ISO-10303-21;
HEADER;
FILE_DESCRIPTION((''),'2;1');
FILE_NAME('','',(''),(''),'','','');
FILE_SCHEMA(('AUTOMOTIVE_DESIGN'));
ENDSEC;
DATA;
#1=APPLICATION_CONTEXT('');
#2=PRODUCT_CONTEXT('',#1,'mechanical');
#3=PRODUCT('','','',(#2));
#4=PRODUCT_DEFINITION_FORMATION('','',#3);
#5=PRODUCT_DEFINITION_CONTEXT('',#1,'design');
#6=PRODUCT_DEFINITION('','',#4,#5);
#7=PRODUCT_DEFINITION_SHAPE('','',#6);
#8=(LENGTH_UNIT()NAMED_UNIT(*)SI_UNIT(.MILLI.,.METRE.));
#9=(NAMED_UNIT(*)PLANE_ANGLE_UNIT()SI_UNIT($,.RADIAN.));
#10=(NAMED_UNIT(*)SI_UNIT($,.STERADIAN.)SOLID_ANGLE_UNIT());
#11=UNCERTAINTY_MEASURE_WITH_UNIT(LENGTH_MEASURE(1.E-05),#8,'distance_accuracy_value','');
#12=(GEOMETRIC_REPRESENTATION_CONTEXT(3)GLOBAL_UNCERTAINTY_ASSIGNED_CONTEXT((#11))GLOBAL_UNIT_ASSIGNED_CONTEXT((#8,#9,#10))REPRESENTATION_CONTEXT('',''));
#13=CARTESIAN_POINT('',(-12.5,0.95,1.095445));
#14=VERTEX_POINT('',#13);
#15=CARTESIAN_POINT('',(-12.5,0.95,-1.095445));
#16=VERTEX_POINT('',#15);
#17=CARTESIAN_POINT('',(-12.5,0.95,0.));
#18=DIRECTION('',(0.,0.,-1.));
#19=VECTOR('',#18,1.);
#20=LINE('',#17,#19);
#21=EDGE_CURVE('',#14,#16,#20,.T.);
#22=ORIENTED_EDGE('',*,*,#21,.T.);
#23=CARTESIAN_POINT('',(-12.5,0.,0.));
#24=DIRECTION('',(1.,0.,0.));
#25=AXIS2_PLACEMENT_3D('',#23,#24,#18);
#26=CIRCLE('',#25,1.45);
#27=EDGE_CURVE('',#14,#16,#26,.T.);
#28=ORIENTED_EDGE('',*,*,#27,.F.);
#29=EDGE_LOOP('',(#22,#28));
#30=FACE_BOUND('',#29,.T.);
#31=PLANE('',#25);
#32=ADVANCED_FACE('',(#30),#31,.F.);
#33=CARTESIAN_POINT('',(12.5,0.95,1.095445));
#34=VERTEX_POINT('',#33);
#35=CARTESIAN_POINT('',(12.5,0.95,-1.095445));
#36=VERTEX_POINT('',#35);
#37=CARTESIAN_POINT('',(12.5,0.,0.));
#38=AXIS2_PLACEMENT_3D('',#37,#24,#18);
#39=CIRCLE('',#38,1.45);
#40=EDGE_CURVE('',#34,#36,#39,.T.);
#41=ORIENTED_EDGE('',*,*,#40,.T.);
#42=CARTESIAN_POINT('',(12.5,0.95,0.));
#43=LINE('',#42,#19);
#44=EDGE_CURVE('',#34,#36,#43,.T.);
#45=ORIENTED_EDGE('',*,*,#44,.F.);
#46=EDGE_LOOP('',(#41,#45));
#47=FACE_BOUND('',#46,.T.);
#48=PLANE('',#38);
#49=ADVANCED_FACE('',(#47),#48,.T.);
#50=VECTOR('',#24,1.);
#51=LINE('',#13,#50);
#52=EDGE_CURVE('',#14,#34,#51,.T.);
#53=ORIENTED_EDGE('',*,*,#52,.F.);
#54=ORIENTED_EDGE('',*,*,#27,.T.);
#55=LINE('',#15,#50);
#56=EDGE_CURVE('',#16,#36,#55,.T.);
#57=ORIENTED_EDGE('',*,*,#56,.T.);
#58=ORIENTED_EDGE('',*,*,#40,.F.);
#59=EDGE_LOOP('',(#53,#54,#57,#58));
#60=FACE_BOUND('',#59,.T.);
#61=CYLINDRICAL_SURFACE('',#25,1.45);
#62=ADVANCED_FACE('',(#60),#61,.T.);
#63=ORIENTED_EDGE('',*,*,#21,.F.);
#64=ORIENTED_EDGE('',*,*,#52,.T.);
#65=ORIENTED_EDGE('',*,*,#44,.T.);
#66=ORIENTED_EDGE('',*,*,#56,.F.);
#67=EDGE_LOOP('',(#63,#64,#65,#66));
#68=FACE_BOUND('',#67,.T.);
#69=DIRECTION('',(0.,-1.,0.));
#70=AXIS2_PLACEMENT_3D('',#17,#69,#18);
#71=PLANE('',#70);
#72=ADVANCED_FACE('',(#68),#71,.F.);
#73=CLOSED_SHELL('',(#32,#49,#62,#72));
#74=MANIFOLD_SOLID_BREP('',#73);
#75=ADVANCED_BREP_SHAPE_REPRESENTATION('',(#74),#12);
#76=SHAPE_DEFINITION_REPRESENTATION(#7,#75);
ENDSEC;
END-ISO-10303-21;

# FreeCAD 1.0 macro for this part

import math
import FreeCAD as App
import Part
import Sketcher

V = App.Vector
Q = App.Units.Quantity

doc = App.newDocument("Part")
body = doc.addObject("PartDesign::Body", "Body")

# Sketch on YZ plane
sketch1 = doc.addObject("Sketcher::SketchObject", "Sketch")
body.addObject(sketch1)
sketch1.AttachmentSupport = (doc.YZ_Plane, [""])
sketch1.MapMode = "FlatFace"
sketch1.addGeometry([
    Part.ArcOfCircle(Part.Circle(V(0, 0, 0), V(0, 0, 1), 1.4), math.radians(49), math.radians(180)),
    Part.ArcOfCircle(Part.Circle(V(0, 0, 0), V(0, 0, 1), 1.4), math.radians(180), math.radians(311)),
    Part.LineSegment(V(0.9, -1.1, 0), V(0.9, 1.1, 0)),
], False)
sketch1.addConstraint([
    Sketcher.Constraint("Tangent", 0, 2, 1, 1),
    Sketcher.Constraint("Coincident", 1, 2, 2, 1),
    Sketcher.Constraint("Coincident", 2, 2, 0, 1),
    Sketcher.Constraint("Vertical", 2),
    Sketcher.Constraint("Coincident", 0, 3, -1, 1),
    Sketcher.Constraint("Equal", 0, 1),
    Sketcher.Constraint("PointOnObject", 0, 2, -1),
    Sketcher.Constraint("Radius", 0, Q("1.45 mm")),
    Sketcher.Constraint("DistanceX", 0, 2, 1, 2, Q("2.4 mm")),
])
pad1 = doc.addObject("PartDesign::Pad", "Pad")
body.addObject(pad1)
pad1.Profile = sketch1
pad1.Type = "TwoLengths"
pad1.Length = 12.5
pad1.Length2 = 12.5

doc.recompute()
